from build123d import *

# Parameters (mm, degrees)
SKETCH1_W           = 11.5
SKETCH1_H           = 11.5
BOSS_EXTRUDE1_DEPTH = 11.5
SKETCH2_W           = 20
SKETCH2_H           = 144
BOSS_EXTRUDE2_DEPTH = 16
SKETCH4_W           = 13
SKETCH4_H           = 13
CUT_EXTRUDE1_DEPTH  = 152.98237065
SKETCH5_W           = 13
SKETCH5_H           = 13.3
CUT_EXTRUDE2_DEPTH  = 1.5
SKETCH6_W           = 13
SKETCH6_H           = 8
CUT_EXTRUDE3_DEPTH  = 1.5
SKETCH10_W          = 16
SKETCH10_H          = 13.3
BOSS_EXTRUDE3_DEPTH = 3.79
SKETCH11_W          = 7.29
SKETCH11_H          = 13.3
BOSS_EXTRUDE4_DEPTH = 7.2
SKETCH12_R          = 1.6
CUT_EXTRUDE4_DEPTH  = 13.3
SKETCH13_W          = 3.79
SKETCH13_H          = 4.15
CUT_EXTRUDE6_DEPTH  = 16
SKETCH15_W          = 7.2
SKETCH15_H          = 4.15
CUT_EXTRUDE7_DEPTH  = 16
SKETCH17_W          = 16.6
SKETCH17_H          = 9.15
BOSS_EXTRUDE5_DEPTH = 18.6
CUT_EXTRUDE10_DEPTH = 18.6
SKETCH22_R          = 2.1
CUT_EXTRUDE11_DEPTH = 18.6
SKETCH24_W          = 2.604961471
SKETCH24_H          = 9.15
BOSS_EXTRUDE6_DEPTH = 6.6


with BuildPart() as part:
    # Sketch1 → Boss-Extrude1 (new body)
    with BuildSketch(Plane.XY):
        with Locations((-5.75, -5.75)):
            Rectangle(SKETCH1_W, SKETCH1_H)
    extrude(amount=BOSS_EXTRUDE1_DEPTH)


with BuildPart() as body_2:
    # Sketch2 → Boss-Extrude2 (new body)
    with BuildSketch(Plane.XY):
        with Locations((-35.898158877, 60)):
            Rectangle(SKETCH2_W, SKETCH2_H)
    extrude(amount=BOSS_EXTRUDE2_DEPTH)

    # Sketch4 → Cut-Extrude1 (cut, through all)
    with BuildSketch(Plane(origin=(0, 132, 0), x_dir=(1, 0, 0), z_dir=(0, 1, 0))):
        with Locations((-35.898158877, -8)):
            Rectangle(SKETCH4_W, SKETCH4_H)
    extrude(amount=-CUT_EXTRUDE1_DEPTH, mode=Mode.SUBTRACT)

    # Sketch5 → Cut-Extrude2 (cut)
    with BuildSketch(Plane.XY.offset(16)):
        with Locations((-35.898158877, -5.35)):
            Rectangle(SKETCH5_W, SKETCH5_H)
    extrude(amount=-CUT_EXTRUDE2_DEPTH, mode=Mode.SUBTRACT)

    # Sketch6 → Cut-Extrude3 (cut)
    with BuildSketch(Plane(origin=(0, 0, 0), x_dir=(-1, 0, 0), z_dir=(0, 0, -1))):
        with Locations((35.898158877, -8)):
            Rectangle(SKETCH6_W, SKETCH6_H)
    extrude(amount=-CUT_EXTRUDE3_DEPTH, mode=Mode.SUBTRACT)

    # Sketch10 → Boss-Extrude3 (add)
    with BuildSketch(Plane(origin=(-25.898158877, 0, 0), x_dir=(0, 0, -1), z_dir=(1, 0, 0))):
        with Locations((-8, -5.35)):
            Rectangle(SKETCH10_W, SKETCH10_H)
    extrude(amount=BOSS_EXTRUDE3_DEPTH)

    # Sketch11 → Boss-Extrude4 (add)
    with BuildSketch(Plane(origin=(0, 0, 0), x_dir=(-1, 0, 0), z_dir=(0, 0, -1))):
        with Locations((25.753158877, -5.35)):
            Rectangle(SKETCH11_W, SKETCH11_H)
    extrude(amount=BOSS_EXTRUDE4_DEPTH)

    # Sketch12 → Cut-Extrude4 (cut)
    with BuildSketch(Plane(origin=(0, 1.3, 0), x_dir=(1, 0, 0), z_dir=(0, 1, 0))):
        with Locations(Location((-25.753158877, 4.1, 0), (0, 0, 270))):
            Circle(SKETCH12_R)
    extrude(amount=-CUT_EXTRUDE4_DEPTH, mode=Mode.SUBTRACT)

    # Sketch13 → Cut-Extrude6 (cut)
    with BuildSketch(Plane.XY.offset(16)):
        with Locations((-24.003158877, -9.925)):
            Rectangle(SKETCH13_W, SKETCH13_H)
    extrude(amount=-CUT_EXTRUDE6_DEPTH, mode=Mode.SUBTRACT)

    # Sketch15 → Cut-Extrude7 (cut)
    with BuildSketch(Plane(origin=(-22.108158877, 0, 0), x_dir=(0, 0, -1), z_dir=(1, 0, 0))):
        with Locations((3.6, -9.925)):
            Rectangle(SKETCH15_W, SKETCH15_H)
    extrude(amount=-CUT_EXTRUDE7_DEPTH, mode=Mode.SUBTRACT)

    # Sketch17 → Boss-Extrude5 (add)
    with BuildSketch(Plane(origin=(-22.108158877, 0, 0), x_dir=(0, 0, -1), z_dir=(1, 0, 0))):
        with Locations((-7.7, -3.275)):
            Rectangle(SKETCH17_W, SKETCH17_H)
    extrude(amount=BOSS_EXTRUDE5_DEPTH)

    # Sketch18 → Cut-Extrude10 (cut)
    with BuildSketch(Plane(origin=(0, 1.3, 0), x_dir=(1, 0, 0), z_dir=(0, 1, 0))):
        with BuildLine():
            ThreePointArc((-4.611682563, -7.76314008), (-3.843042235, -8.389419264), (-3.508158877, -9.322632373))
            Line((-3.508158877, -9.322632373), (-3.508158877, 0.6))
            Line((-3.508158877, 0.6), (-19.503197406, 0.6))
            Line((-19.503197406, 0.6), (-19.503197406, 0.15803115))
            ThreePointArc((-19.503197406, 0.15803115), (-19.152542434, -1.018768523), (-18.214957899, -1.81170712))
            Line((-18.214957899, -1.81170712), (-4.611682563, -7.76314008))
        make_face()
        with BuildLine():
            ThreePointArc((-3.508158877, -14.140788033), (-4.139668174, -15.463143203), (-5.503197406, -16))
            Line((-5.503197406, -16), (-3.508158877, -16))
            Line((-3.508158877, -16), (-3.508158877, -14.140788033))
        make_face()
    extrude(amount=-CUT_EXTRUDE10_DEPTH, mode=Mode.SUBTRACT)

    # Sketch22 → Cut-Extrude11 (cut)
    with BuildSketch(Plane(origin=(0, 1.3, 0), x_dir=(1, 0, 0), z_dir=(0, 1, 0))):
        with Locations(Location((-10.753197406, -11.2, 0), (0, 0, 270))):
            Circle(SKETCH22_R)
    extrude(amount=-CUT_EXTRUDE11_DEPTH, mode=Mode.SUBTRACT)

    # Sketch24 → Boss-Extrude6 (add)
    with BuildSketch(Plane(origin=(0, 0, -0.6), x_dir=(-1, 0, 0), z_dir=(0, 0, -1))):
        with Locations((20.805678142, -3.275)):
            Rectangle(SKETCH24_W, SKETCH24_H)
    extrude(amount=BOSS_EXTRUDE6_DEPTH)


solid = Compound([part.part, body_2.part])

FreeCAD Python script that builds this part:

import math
import FreeCAD as App
import Part
import Sketcher
from FreeCAD import Vector


def add_polygon(sketch, points):
    """Adds a closed chain of lines whose ends are joined by coincident constraints."""
    first, n = sketch.GeometryCount, len(points)
    for a, b in zip(points, points[1:] + points[:1]):
        sketch.addGeometry(Part.LineSegment(App.Vector(*a, 0), App.Vector(*b, 0)), False)
    for i in range(n):
        sketch.addConstraint(Sketcher.Constraint("Coincident", first + i, 2, first + (i + 1) % n, 1))

doc = App.newDocument("Part")
body = doc.addObject("PartDesign::Body", "Body")

sketch1 = doc.addObject("Sketcher::SketchObject", "Sketch")
body.addObject(sketch1)
sketch1.AttachmentSupport = (doc.XY_Plane, [""])
sketch1.MapMode = "FlatFace"
add_polygon(sketch1, [(-12, 0), (-12, -12), (0, -12), (0, 0)])
sketch1.addConstraint(Sketcher.Constraint("Vertical", 0))
sketch1.addConstraint(Sketcher.Constraint("Horizontal", 1))
sketch1.addConstraint(Sketcher.Constraint("Vertical", 2))
sketch1.addConstraint(Sketcher.Constraint("Horizontal", 3))
sketch1.addConstraint(Sketcher.Constraint("Coincident", 2, 2, -1, 1))
sketch1.addConstraint(Sketcher.Constraint("Equal", 3, 0))
sketch1.addConstraint(Sketcher.Constraint("DistanceX", 1, 1, 1, 2, 11.5))
pad1 = doc.addObject("PartDesign::Pad", "Pad")
body.addObject(pad1)
pad1.Profile = sketch1
pad1.Length = 11.5
body2 = doc.addObject("PartDesign::Body", "Body001")

sketch2 = doc.addObject("Sketcher::SketchObject", "Sketch001")
body2.addObject(sketch2)
sketch2.AttachmentSupport = (doc.getObject("XY_Plane001"), [""])
sketch2.MapMode = "FlatFace"
add_polygon(sketch2, [(-46, 132), (-46, -12), (-26, -12), (-26, 132)])
sketch2.addConstraint(Sketcher.Constraint("Vertical", 0))
sketch2.addConstraint(Sketcher.Constraint("Horizontal", 1))
sketch2.addConstraint(Sketcher.Constraint("Vertical", 2))
sketch2.addConstraint(Sketcher.Constraint("Horizontal", 3))
sketch2.addConstraint(Sketcher.Constraint("DistanceX", 1, 1, 1, 2, 20.0))
sketch2.addConstraint(Sketcher.Constraint("DistanceY", 0, 2, 0, 1, 144.0))
sketch2.addConstraint(Sketcher.Constraint("DistanceY", 0, 2, -1, 1, 12.0))
sketch2.addConstraint(Sketcher.Constraint("DistanceX", 0, 2, -1, 1, 45.898159))
pad2 = doc.addObject("PartDesign::Pad", "Pad001")
body2.addObject(pad2)
pad2.Profile = sketch2
pad2.Length = 16

sketch3 = doc.addObject("Sketcher::SketchObject", "Sketch002")
body2.addObject(sketch3)
sketch3.AttachmentSupport = (doc.getObject("XZ_Plane001"), [""])
sketch3.MapMode = "FlatFace"
sketch3.AttachmentOffset = App.Placement(Vector(0, 0, -132), App.Rotation())
add_polygon(sketch3, [(-42, 2), (-42, 14), (-29, 14), (-29, 2)])
sketch3.addConstraint(Sketcher.Constraint("Vertical", 0))
sketch3.addConstraint(Sketcher.Constraint("Horizontal", 1))
sketch3.addConstraint(Sketcher.Constraint("Vertical", 2))
sketch3.addConstraint(Sketcher.Constraint("Horizontal", 3))
sketch3.addConstraint(Sketcher.Constraint("Equal", 3, 0))
sketch3.addConstraint(Sketcher.Constraint("DistanceX", 1, 1, 1, 2, 13.0))
sketch3.addConstraint(Sketcher.Constraint("DistanceY", -1, 1, 0, 2, 14.5))
sketch3.addConstraint(Sketcher.Constraint("DistanceX", 0, 2, -1, 1, 42.398159))
pocket1 = doc.addObject("PartDesign::Pocket", "Pocket")
body2.addObject(pocket1)
pocket1.Profile = sketch3
pocket1.Type = "ThroughAll"
pocket1.Reversed = True

sketch4 = doc.addObject("Sketcher::SketchObject", "Sketch003")
body2.addObject(sketch4)
sketch4.AttachmentSupport = (doc.getObject("XY_Plane001"), [""])
sketch4.MapMode = "FlatFace"
sketch4.AttachmentOffset = App.Placement(Vector(0, 0, 16), App.Rotation())
add_polygon(sketch4, [(-42, 1), (-42, -12), (-29, -12), (-29, 1)])
sketch4.addConstraint(Sketcher.Constraint("Vertical", 0))
sketch4.addConstraint(Sketcher.Constraint("Horizontal", 1))
sketch4.addConstraint(Sketcher.Constraint("Vertical", 2))
sketch4.addConstraint(Sketcher.Constraint("Horizontal", 3))
sketch4.addConstraint(Sketcher.Constraint("DistanceX", 1, 1, 1, 2, 13.0))
sketch4.addConstraint(Sketcher.Constraint("DistanceY", 0, 2, 0, 1, 13.3))
sketch4.addConstraint(Sketcher.Constraint("DistanceY", 0, 2, -1, 1, 12.0))
sketch4.addConstraint(Sketcher.Constraint("DistanceX", 0, 2, -1, 1, 42.398159))
pocket2 = doc.addObject("PartDesign::Pocket", "Pocket001")
body2.addObject(pocket2)
pocket2.Profile = sketch4
pocket2.Length = 1.5

sketch5 = doc.addObject("Sketcher::SketchObject", "Sketch004")
body2.addObject(sketch5)
sketch5.AttachmentSupport = (doc.getObject("XY_Plane001"), [""])
sketch5.MapMode = "FlatFace"
add_polygon(sketch5, [(-29, -4), (-29, -12), (-42, -12), (-42, -4)])
sketch5.addConstraint(Sketcher.Constraint("Vertical", 0))
sketch5.addConstraint(Sketcher.Constraint("Horizontal", 1))
sketch5.addConstraint(Sketcher.Constraint("Vertical", 2))
sketch5.addConstraint(Sketcher.Constraint("Horizontal", 3))
sketch5.addConstraint(Sketcher.Constraint("DistanceX", 1, 2, 1, 1, 13.0))
sketch5.addConstraint(Sketcher.Constraint("DistanceY", 0, 2, 0, 1, 8.0))
sketch5.addConstraint(Sketcher.Constraint("DistanceY", 0, 2, -1, 1, 12.0))
sketch5.addConstraint(Sketcher.Constraint("DistanceX", 0, 2, -1, 1, 29.398159))
pocket3 = doc.addObject("PartDesign::Pocket", "Pocket002")
body2.addObject(pocket3)
pocket3.Profile = sketch5
pocket3.Length = 1.5
pocket3.Reversed = True

sketch6 = doc.addObject("Sketcher::SketchObject", "Sketch005")
body2.addObject(sketch6)
sketch6.AttachmentSupport = (doc.getObject("YZ_Plane001"), [""])
sketch6.MapMode = "FlatFace"
sketch6.AttachmentOffset = App.Placement(Vector(0, 0, -25.898159), App.Rotation())
add_polygon(sketch6, [(1, 16), (-12, 16), (-12, 0), (1, 0)])
sketch6.addConstraint(Sketcher.Constraint("Horizontal", 0))
sketch6.addConstraint(Sketcher.Constraint("Vertical", 1))
sketch6.addConstraint(Sketcher.Constraint("Horizontal", 2))
sketch6.addConstraint(Sketcher.Constraint("Vertical", 3))
sketch6.addConstraint(Sketcher.Constraint("PointOnObject", 1, 2, -1))
sketch6.addConstraint(Sketcher.Constraint("DistanceY", 1, 2, 1, 1, 16.0))
sketch6.addConstraint(Sketcher.Constraint("DistanceX", 0, 2, 0, 1, 13.3))
sketch6.addConstraint(Sketcher.Constraint("DistanceX", 0, 2, -1, 1, 12.0))
pad3 = doc.addObject("PartDesign::Pad", "Pad002")
body2.addObject(pad3)
pad3.Profile = sketch6
pad3.Length = 3.79

sketch7 = doc.addObject("Sketcher::SketchObject", "Sketch006")
body2.addObject(sketch7)
sketch7.AttachmentSupport = (doc.getObject("XY_Plane001"), [""])
sketch7.MapMode = "FlatFace"
add_polygon(sketch7, [(-22, 1), (-22, -12), (-29, -12), (-29, 1)])
sketch7.addConstraint(Sketcher.Constraint("Vertical", 0))
sketch7.addConstraint(Sketcher.Constraint("Horizontal", 1))
sketch7.addConstraint(Sketcher.Constraint("Vertical", 2))
sketch7.addConstraint(Sketcher.Constraint("Horizontal", 3))
sketch7.addConstraint(Sketcher.Constraint("DistanceY", 0, 2, 0, 1, 13.3))
sketch7.addConstraint(Sketcher.Constraint("DistanceY", 0, 2, -1, 1, 12.0))
sketch7.addConstraint(Sketcher.Constraint("DistanceX", 1, 2, 1, 1, 7.29))
sketch7.addConstraint(Sketcher.Constraint("DistanceX", 0, 2, -1, 1, 22.108159))
pad4 = doc.addObject("PartDesign::Pad", "Pad003")
body2.addObject(pad4)
pad4.Profile = sketch7
pad4.Length = 7.2
pad4.Reversed = True

sketch8 = doc.addObject("Sketcher::SketchObject", "Sketch007")
body2.addObject(sketch8)
sketch8.AttachmentSupport = (doc.getObject("XZ_Plane001"), [""])
sketch8.MapMode = "FlatFace"
sketch8.AttachmentOffset = App.Placement(Vector(0, 0, -1.3), App.Rotation())
sketch8.addGeometry(Part.Circle(Vector(-25.8, -4.1, 0), Vector(0, 0, 1), 1.6), False)
sketch8.addConstraint(Sketcher.Constraint("Diameter", 0, 3.2))
sketch8.addConstraint(Sketcher.Constraint("DistanceY", 0, 3, -1, 1, 4.1))
sketch8.addConstraint(Sketcher.Constraint("DistanceX", 0, 3, -1, 1, 25.753159))
pocket4 = doc.addObject("PartDesign::Pocket", "Pocket003")
body2.addObject(pocket4)
pocket4.Profile = sketch8
pocket4.Length = 13.3
pocket4.Reversed = True

sketch9 = doc.addObject("Sketcher::SketchObject", "Sketch008")
body2.addObject(sketch9)
sketch9.AttachmentSupport = (doc.getObject("XY_Plane001"), [""])
sketch9.MapMode = "FlatFace"
sketch9.AttachmentOffset = App.Placement(Vector(0, 0, 16), App.Rotation())
add_polygon(sketch9, [(-25.9, -7.8), (-25.9, -12), (-22.1, -12), (-22.1, -7.8)])
sketch9.addConstraint(Sketcher.Constraint("Vertical", 0))
sketch9.addConstraint(Sketcher.Constraint("Horizontal", 1))
sketch9.addConstraint(Sketcher.Constraint("Vertical", 2))
sketch9.addConstraint(Sketcher.Constraint("Horizontal", 3))
sketch9.addConstraint(Sketcher.Constraint("DistanceY", 0, 2, -1, 1, 12.0))
sketch9.addConstraint(Sketcher.Constraint("DistanceX", 1, 1, 1, 2, 3.79))
sketch9.addConstraint(Sketcher.Constraint("DistanceY", 0, 2, 0, 1, 4.15))
sketch9.addConstraint(Sketcher.Constraint("DistanceX", 0, 2, -1, 1, 25.898159))
pocket5 = doc.addObject("PartDesign::Pocket", "Pocket004")
body2.addObject(pocket5)
pocket5.Profile = sketch9
pocket5.Length = 16

sketch10 = doc.addObject("Sketcher::SketchObject", "Sketch009")
body2.addObject(sketch10)
sketch10.AttachmentSupport = (doc.getObject("YZ_Plane001"), [""])
sketch10.MapMode = "FlatFace"
sketch10.AttachmentOffset = App.Placement(Vector(0, 0, -22.108159), App.Rotation())
add_polygon(sketch10, [(-7.8, 0), (-12, 0), (-12, -7.2), (-7.8, -7.2)])
sketch10.addConstraint(Sketcher.Constraint("Horizontal", 0))
sketch10.addConstraint(Sketcher.Constraint("Vertical", 1))
sketch10.addConstraint(Sketcher.Constraint("Horizontal", 2))
sketch10.addConstraint(Sketcher.Constraint("Vertical", 3))
sketch10.addConstraint(Sketcher.Constraint("PointOnObject", 0, 2, -1))
sketch10.addConstraint(Sketcher.Constraint("DistanceY", 1, 2, 1, 1, 7.2))
sketch10.addConstraint(Sketcher.Constraint("DistanceX", 0, 2, -1, 1, 12.0))
sketch10.addConstraint(Sketcher.Constraint("DistanceX", 0, 2, 0, 1, 4.15))
pocket6 = doc.addObject("PartDesign::Pocket", "Pocket005")
body2.addObject(pocket6)
pocket6.Profile = sketch10
pocket6.Length = 16

sketch11 = doc.addObject("Sketcher::SketchObject", "Sketch010")
body2.addObject(sketch11)
sketch11.AttachmentSupport = (doc.getObject("YZ_Plane001"), [""])
sketch11.MapMode = "FlatFace"
sketch11.AttachmentOffset = App.Placement(Vector(0, 0, -22.108159), App.Rotation())
add_polygon(sketch11, [(1, 16), (-8, 16), (-8, -1), (1, -1)])
sketch11.addConstraint(Sketcher.Constraint("Horizontal", 0))
sketch11.addConstraint(Sketcher.Constraint("Vertical", 1))
sketch11.addConstraint(Sketcher.Constraint("Horizontal", 2))
sketch11.addConstraint(Sketcher.Constraint("Vertical", 3))
sketch11.addConstraint(Sketcher.Constraint("DistanceY", 1, 2, 1, 1, 16.6))
sketch11.addConstraint(Sketcher.Constraint("DistanceY", -1, 1, 0, 2, 16.0))
sketch11.addConstraint(Sketcher.Constraint("DistanceX", 0, 2, 0, 1, 9.15))
sketch11.addConstraint(Sketcher.Constraint("DistanceX", -1, 1, 2, 2, 1.3))
pad5 = doc.addObject("PartDesign::Pad", "Pad004")
body2.addObject(pad5)
pad5.Profile = sketch11
pad5.Length = 18.6

sketch12 = doc.addObject("Sketcher::SketchObject", "Sketch011")
body2.addObject(sketch12)
sketch12.AttachmentSupport = (doc.getObject("XZ_Plane001"), [""])
sketch12.MapMode = "FlatFace"
sketch12.AttachmentOffset = App.Placement(Vector(0, 0, -1.3), App.Rotation())
sketch12.addGeometry(Part.ArcOfCircle(Part.Circle(Vector(-5.35, 9.46, 0), Vector(0, 0, 1), 1.85), math.radians(-66), math.radians(-4)), False)
sketch12.addGeometry(Part.LineSegment(Vector(-3.51, 9.32, 0), Vector(-3.51, -0.6, 0)), False)
sketch12.addGeometry(Part.LineSegment(Vector(-3.51, -0.6, 0), Vector(-19.5, -0.6, 0)), False)
sketch12.addGeometry(Part.LineSegment(Vector(-19.5, -0.6, 0), Vector(-19.5, -0.16, 0)), False)
sketch12.addGeometry(Part.ArcOfCircle(Part.Circle(Vector(-17.35, -0.16, 0), Vector(0, 0, 1), 2.15), math.radians(114), math.radians(180)), False)
sketch12.addGeometry(Part.LineSegment(Vector(-18.21, 1.81, 0), Vector(-4.61, 7.76, 0)), False)
sketch12.addGeometry(Part.ArcOfCircle(Part.Circle(Vector(-5.5, 14, 0), Vector(0, 0, 1), 2), math.radians(4), math.radians(90)), False)
sketch12.addGeometry(Part.LineSegment(Vector(-5.5, 16, 0), Vector(-3.51, 16, 0)), False)
sketch12.addGeometry(Part.LineSegment(Vector(-3.51, 16, 0), Vector(-3.51, 14.14, 0)), False)
sketch12.addConstraint(Sketcher.Constraint("Coincident", 0, 2, 1, 1))
sketch12.addConstraint(Sketcher.Constraint("Coincident", 1, 2, 2, 1))
sketch12.addConstraint(Sketcher.Constraint("Coincident", 2, 2, 3, 1))
sketch12.addConstraint(Sketcher.Constraint("Tangent", 3, 2, 4, 2))
sketch12.addConstraint(Sketcher.Constraint("Tangent", 4, 1, 5, 1))
sketch12.addConstraint(Sketcher.Constraint("Tangent", 5, 2, 0, 1))
sketch12.addConstraint(Sketcher.Constraint("Tangent", 6, 2, 7, 1))
sketch12.addConstraint(Sketcher.Constraint("Coincident", 7, 2, 8, 1))
sketch12.addConstraint(Sketcher.Constraint("Coincident", 8, 2, 6, 1))
sketch12.addConstraint(Sketcher.Constraint("Vertical", 1))
sketch12.addConstraint(Sketcher.Constraint("Horizontal", 2))
sketch12.addConstraint(Sketcher.Constraint("Vertical", 3))
sketch12.addConstraint(Sketcher.Constraint("Horizontal", 7))
sketch12.addConstraint(Sketcher.Constraint("Vertical", 8))
sketch12.addConstraint(Sketcher.Constraint("Vertical", 1, 2, 7, 2))
sketch12.addConstraint(Sketcher.Constraint("Radius", 6, 2.0))
sketch12.addConstraint(Sketcher.Constraint("Radius", 0, 1.85))
sketch12.addConstraint(Sketcher.Constraint("Radius", 4, 2.15))
sketch12.addConstraint(Sketcher.Constraint("DistanceY", -1, 1, 6, 3, 14.0))
sketch12.addConstraint(Sketcher.Constraint("DistanceX", 4, 3, 0, 3, 12.0))
sketch12.addConstraint(Sketcher.Constraint("DistanceX", 2, 2, 6, 3, 14.0))
sketch12.addConstraint(Sketcher.Constraint("DistanceY", 1, 2, -1, 1, 0.6))
sketch12.addConstraint(Sketcher.Constraint("DistanceX", 2, 2, 2, 1, 15.995039))
sketch12.addConstraint(Sketcher.Constraint("DistanceY", 3, 1, 3, 2, 0.441969))
sketch12.addConstraint(Sketcher.Constraint("DistanceX", 4, 1, 1, 2, 14.706799))
sketch12.addConstraint(Sketcher.Constraint("DistanceX", 0, 2, -1, 1, 3.508159))
pocket7 = doc.addObject("PartDesign::Pocket", "Pocket006")
body2.addObject(pocket7)
pocket7.Profile = sketch12
pocket7.Length = 18.6
pocket7.Reversed = True

sketch13 = doc.addObject("Sketcher::SketchObject", "Sketch012")
body2.addObject(sketch13)
sketch13.AttachmentSupport = (doc.getObject("XZ_Plane001"), [""])
sketch13.MapMode = "FlatFace"
sketch13.AttachmentOffset = App.Placement(Vector(0, 0, -1.3), App.Rotation())
sketch13.addGeometry(Part.Circle(Vector(-10.8, 11.2, 0), Vector(0, 0, 1), 2.1), False)
sketch13.addConstraint(Sketcher.Constraint("Diameter", 0, 4.2))
sketch13.addConstraint(Sketcher.Constraint("DistanceY", -1, 1, 0, 3, 11.2))
sketch13.addConstraint(Sketcher.Constraint("DistanceX", 0, 3, -1, 1, 10.753197))
pocket8 = doc.addObject("PartDesign::Pocket", "Pocket007")
body2.addObject(pocket8)
pocket8.Profile = sketch13
pocket8.Length = 18.6
pocket8.Reversed = True

sketch14 = doc.addObject("Sketcher::SketchObject", "Sketch013")
body2.addObject(sketch14)
sketch14.AttachmentSupport = (doc.getObject("XY_Plane001"), [""])
sketch14.MapMode = "FlatFace"
sketch14.AttachmentOffset = App.Placement(Vector(0, 0, -0.6), App.Rotation())
add_polygon(sketch14, [(-19.5, 1.3), (-19.5, -7.8), (-22.1, -7.8), (-22.1, 1.3)])
sketch14.addConstraint(Sketcher.Constraint("Vertical", 0))
sketch14.addConstraint(Sketcher.Constraint("Horizontal", 1))
sketch14.addConstraint(Sketcher.Constraint("Vertical", 2))
sketch14.addConstraint(Sketcher.Constraint("Horizontal", 3))
sketch14.addConstraint(Sketcher.Constraint("DistanceY", 0, 2, 0, 1, 9.15))
sketch14.addConstraint(Sketcher.Constraint("DistanceY", -1, 1, 2, 2, 1.3))
sketch14.addConstraint(Sketcher.Constraint("DistanceX", 1, 2, 1, 1, 2.604961))
sketch14.addConstraint(Sketcher.Constraint("DistanceX", 1, 2, -1, 1, 22.108159))
pad6 = doc.addObject("PartDesign::Pad", "Pad005")
body2.addObject(pad6)
pad6.Profile = sketch14
pad6.Length = 6.6
pad6.Reversed = True

doc.recompute()
